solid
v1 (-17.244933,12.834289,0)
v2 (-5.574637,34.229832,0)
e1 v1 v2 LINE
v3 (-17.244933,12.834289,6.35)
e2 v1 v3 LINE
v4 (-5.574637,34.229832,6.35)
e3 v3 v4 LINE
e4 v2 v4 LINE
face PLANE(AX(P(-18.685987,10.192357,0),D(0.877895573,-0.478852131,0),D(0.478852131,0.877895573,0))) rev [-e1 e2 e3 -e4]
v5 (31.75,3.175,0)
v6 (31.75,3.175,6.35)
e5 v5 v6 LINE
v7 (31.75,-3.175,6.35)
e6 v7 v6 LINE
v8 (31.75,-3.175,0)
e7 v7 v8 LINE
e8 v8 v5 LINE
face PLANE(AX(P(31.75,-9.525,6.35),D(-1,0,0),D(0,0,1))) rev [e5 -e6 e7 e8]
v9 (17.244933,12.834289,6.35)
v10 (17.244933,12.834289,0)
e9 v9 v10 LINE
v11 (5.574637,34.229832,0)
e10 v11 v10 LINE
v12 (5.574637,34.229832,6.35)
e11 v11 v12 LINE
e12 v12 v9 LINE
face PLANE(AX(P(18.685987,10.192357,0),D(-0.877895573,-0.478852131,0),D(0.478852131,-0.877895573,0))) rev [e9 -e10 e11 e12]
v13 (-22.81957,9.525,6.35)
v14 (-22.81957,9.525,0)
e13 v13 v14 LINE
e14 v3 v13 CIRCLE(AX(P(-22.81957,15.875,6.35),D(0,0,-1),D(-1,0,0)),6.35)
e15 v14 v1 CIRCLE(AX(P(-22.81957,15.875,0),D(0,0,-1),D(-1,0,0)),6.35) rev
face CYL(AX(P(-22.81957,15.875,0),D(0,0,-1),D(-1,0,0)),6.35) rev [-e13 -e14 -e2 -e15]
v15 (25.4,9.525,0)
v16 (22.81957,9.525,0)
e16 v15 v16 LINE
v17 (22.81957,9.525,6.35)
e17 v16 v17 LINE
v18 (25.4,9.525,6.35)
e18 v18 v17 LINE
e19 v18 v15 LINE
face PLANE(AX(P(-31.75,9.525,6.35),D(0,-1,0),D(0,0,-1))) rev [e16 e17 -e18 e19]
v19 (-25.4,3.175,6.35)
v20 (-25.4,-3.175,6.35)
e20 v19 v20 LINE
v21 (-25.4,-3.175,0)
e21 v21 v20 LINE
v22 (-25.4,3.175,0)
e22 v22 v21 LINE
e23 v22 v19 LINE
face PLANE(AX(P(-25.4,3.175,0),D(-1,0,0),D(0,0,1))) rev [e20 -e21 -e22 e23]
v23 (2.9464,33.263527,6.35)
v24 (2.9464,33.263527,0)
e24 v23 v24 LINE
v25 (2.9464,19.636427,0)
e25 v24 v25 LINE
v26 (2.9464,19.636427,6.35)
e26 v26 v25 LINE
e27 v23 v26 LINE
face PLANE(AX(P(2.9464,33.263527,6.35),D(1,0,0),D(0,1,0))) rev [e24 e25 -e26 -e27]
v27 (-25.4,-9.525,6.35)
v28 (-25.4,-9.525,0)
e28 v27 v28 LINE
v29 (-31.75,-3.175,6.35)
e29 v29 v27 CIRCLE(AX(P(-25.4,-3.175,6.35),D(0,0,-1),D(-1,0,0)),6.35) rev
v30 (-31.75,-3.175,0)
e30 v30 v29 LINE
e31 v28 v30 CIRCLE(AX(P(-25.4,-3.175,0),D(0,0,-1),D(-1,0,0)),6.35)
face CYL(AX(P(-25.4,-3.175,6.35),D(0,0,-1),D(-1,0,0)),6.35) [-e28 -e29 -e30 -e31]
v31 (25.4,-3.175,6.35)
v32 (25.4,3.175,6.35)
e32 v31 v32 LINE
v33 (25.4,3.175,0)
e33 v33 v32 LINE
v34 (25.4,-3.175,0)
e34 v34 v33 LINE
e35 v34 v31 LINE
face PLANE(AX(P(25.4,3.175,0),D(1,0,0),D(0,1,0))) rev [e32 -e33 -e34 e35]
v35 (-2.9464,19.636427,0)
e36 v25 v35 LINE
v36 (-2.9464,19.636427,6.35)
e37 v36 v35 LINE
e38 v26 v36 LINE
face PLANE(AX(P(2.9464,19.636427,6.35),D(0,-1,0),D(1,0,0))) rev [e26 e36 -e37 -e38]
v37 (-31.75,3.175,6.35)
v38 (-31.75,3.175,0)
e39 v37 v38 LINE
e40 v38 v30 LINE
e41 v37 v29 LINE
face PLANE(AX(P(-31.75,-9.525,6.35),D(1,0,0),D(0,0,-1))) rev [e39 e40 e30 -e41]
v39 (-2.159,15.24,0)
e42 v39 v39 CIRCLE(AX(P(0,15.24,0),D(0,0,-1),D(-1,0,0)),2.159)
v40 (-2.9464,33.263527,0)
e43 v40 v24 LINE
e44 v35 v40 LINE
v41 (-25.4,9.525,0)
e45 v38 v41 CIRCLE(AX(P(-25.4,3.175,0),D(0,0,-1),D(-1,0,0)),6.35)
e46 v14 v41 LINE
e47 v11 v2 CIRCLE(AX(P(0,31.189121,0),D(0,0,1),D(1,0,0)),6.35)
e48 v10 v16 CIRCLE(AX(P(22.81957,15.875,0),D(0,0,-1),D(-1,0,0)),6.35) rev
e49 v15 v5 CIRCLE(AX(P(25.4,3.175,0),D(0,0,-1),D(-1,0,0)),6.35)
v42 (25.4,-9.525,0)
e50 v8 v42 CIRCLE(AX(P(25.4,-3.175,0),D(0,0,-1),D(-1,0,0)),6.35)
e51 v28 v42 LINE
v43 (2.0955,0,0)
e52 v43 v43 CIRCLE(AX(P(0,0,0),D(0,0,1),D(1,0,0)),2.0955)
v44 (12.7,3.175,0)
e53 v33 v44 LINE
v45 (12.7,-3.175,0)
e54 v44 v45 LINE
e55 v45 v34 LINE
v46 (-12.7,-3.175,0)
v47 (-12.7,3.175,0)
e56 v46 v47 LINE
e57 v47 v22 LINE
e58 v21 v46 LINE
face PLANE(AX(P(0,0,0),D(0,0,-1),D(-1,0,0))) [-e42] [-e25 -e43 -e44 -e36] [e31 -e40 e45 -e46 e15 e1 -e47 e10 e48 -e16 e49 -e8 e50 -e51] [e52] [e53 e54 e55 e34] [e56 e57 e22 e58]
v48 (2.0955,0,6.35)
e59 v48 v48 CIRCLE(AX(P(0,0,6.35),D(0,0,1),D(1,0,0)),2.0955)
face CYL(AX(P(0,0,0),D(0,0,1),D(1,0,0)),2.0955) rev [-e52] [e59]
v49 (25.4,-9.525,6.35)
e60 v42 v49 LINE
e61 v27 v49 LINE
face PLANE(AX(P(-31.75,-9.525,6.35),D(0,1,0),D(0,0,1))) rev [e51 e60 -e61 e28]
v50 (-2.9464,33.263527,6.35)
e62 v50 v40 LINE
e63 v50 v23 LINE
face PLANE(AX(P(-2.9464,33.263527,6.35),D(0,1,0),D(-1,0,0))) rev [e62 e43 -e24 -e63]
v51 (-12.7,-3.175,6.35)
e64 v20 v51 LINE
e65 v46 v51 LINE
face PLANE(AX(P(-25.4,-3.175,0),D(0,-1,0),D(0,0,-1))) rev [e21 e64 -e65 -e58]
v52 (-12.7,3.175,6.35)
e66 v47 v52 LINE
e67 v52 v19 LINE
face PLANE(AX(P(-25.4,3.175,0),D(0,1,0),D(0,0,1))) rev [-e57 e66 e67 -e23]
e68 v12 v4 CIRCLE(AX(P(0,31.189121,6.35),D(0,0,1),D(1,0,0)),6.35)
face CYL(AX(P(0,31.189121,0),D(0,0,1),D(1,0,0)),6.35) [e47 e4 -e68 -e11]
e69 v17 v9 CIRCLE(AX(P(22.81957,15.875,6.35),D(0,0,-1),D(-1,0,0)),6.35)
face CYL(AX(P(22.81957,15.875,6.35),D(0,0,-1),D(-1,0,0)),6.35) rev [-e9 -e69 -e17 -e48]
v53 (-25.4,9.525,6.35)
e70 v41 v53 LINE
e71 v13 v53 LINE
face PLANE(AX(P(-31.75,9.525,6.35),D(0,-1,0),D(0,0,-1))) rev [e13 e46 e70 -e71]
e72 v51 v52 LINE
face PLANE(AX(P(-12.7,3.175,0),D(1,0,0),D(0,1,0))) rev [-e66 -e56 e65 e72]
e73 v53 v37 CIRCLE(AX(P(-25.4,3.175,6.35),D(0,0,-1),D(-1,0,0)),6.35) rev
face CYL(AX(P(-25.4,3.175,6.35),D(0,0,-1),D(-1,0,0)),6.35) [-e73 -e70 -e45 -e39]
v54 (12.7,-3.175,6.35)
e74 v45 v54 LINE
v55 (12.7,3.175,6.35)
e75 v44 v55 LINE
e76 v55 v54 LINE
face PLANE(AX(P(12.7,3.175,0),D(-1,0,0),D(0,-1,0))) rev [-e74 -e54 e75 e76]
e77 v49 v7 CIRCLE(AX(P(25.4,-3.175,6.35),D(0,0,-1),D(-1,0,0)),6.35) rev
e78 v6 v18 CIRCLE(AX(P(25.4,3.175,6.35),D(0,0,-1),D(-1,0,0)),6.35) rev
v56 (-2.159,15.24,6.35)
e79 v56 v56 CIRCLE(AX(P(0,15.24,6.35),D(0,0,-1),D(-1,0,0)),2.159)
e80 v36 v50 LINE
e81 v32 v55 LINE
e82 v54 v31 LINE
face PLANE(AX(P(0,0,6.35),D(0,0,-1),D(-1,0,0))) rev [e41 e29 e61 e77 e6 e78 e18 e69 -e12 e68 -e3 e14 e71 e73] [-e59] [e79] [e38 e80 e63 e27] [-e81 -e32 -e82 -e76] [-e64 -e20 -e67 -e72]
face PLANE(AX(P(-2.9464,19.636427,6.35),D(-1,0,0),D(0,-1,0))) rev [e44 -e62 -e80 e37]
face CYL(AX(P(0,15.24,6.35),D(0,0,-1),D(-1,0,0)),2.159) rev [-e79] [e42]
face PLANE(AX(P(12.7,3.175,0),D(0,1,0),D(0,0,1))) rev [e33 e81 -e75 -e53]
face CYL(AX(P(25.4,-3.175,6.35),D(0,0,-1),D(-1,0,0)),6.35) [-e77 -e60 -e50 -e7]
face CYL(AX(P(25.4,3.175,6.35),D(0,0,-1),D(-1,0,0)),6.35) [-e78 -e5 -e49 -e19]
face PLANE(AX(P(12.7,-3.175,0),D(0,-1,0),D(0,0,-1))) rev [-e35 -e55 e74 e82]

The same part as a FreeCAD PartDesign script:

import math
import FreeCAD as App
import Part
import Sketcher
from FreeCAD import Vector
Q = App.Units.Quantity


def edges_at(feature, points):
    """Names of the edges that pass closest to the given points."""
    edges = feature.Shape.Edges
    near = lambda p: min(range(len(edges)), key=lambda i: edges[i].distToShape(Part.Vertex(*p))[0])
    return sorted({f"Edge{near(p) + 1}" for p in points})

doc = App.newDocument("Part")
body = doc.addObject("PartDesign::Body", "Body")

# Sketch on XY plane
sketch1 = doc.addObject("Sketcher::SketchObject", "Sketch")
body.addObject(sketch1)
sketch1.AttachmentSupport = (doc.XY_Plane, [""])
sketch1.MapMode = "FlatFace"
sketch1.addGeometry([
    Part.LineSegment(Vector(-32, 10, 0), Vector(-32, -10, 0)),
    Part.LineSegment(Vector(-32, -10, 0), Vector(32, -10, 0)),
    Part.LineSegment(Vector(32, -10, 0), Vector(32, 10, 0)),
    Part.LineSegment(Vector(32, 10, 0), Vector(-32, 10, 0)),
], False)
sketch1.addConstraint([
    Sketcher.Constraint("Coincident", 0, 2, 1, 1),
    Sketcher.Constraint("Coincident", 1, 2, 2, 1),
    Sketcher.Constraint("Coincident", 2, 2, 3, 1),
    Sketcher.Constraint("Coincident", 3, 2, 0, 1),
    Sketcher.Constraint("Vertical", 0),
    Sketcher.Constraint("Horizontal", 1),
    Sketcher.Constraint("Vertical", 2),
    Sketcher.Constraint("Horizontal", 3),
    Sketcher.Constraint("Symmetric", 0, 2, 2, 2, -1, 1),
    Sketcher.Constraint("DistanceX", 1, 1, 1, 2, Q("2.5 in")),
    Sketcher.Constraint("DistanceY", 0, 2, 0, 1, Q("0.75 in")),
])
pad1 = doc.addObject("PartDesign::Pad", "Pad")
body.addObject(pad1)
pad1.Profile = sketch1
pad1.Length = Q("0.25 in")

# Sketch on XY plane
sketch2 = doc.addObject("Sketcher::SketchObject", "Sketch001")
body.addObject(sketch2)
sketch2.AttachmentSupport = (doc.XY_Plane, [""])
sketch2.MapMode = "FlatFace"
sketch2.AttachmentOffset = App.Placement(Vector(0, 0, 0.25 * 25.4), App.Rotation())
sketch2.addGeometry([
    Part.Circle(Vector(0, 0, 0), Vector(0, 0, 1), 2.1),  # 0
    Part.LineSegment(Vector(-25.4, 3.2, 0), Vector(-25.4, -3.2, 0)),  # 1
    Part.LineSegment(Vector(-25.4, -3.2, 0), Vector(-12.7, -3.2, 0)),  # 2
    Part.LineSegment(Vector(-12.7, -3.2, 0), Vector(-12.7, 3.2, 0)),  # 3
    Part.LineSegment(Vector(-12.7, 3.2, 0), Vector(-25.4, 3.2, 0)),  # 4
    Part.LineSegment(Vector(12.7, 3.2, 0), Vector(12.7, -3.2, 0)),  # 5
    Part.LineSegment(Vector(12.7, -3.2, 0), Vector(25.4, -3.2, 0)),  # 6
    Part.LineSegment(Vector(25.4, -3.2, 0), Vector(25.4, 3.2, 0)),  # 7
    Part.LineSegment(Vector(25.4, 3.2, 0), Vector(12.7, 3.2, 0)),  # 8
], False)
sketch2.addConstraint([
    Sketcher.Constraint("Coincident", 1, 2, 2, 1),
    Sketcher.Constraint("Coincident", 2, 2, 3, 1),
    Sketcher.Constraint("Coincident", 3, 2, 4, 1),
    Sketcher.Constraint("Coincident", 4, 2, 1, 1),
    Sketcher.Constraint("Coincident", 5, 2, 6, 1),
    Sketcher.Constraint("Coincident", 6, 2, 7, 1),
    Sketcher.Constraint("Coincident", 7, 2, 8, 1),
    Sketcher.Constraint("Coincident", 8, 2, 5, 1),
    Sketcher.Constraint("Vertical", 1),
    Sketcher.Constraint("Horizontal", 2),
    Sketcher.Constraint("Vertical", 3),
    Sketcher.Constraint("Horizontal", 4),
    Sketcher.Constraint("Vertical", 5),
    Sketcher.Constraint("Horizontal", 6),
    Sketcher.Constraint("Vertical", 7),
    Sketcher.Constraint("Horizontal", 8),
    Sketcher.Constraint("Coincident", 0, 3, -1, 1),
    Sketcher.Constraint("Symmetric", 3, 2, 5, 2, -1, 1),
    Sketcher.Constraint("Symmetric", 1, 2, 7, 2, -1, 1),
    Sketcher.Constraint("Horizontal", 2, 2, 5, 2),
    Sketcher.Constraint("Diameter", 0, Q("0.165 in")),
    Sketcher.Constraint("DistanceX", 2, 1, 2, 2, Q("0.5 in")),
    Sketcher.Constraint("DistanceX", 1, 2, -1, 1, Q("1 in")),
    Sketcher.Constraint("DistanceY", 1, 2, 1, 1, Q("0.25 in")),
])
pocket1 = doc.addObject("PartDesign::Pocket", "Pocket")
body.addObject(pocket1)
pocket1.Profile = sketch2
pocket1.Length = Q("0.25 in")

# Sketch on XY plane
sketch3 = doc.addObject("Sketcher::SketchObject", "Sketch002")
body.addObject(sketch3)
sketch3.AttachmentSupport = (doc.XY_Plane, [""])
sketch3.MapMode = "FlatFace"
sketch3.AttachmentOffset = App.Placement(Vector(0, 0, 0.25 * 25.4), App.Rotation())
sketch3.addGeometry([
    Part.ArcOfCircle(Part.Circle(Vector(0, 31, 0), Vector(0, 0, 1), 6), math.radians(90), math.radians(151)),  # 0
    Part.LineSegment(Vector(-6, 34, 0), Vector(-19, 10, 0)),  # 1
    Part.LineSegment(Vector(-19, 10, 0), Vector(19, 10, 0)),  # 2
    Part.LineSegment(Vector(19, 10, 0), Vector(6, 34, 0)),  # 3
    Part.ArcOfCircle(Part.Circle(Vector(0, 31, 0), Vector(0, 0, 1), 6), math.radians(29), math.radians(90)),  # 4
], False)
sketch3.addConstraint([
    Sketcher.Constraint("Tangent", 0, 2, 1, 1),
    Sketcher.Constraint("Coincident", 1, 2, 2, 1),
    Sketcher.Constraint("Coincident", 2, 2, 3, 1),
    Sketcher.Constraint("Tangent", 3, 2, 4, 1),
    Sketcher.Constraint("Tangent", 4, 2, 0, 1),
    Sketcher.Constraint("Horizontal", 2),
    Sketcher.Constraint("Equal", 0, 4),
    Sketcher.Constraint("Symmetric", 0, 2, 3, 2, -2),
    Sketcher.Constraint("PointOnObject", 4, 2, -2),
    Sketcher.Constraint("Radius", 0, Q("0.25 in")),
    Sketcher.Constraint("DistanceX", 2, 1, 2, 2, Q("1.5 in")),
    Sketcher.Constraint("DistanceY", -1, 1, 1, 2, Q("0.375 in")),
    Sketcher.Constraint("Distance", 1, Q("28.140969 mm")),
])
pad2 = doc.addObject("PartDesign::Pad", "Pad001")
body.addObject(pad2)
pad2.Profile = sketch3
pad2.Length = Q("0.25 in")
pad2.Reversed = True

# Sketch on XY plane
sketch4 = doc.addObject("Sketcher::SketchObject", "Sketch003")
body.addObject(sketch4)
sketch4.AttachmentSupport = (doc.XY_Plane, [""])
sketch4.MapMode = "FlatFace"
sketch4.addGeometry([
    Part.Circle(Vector(0, 15.2, 0), Vector(0, 0, 1), 2.2),  # 0
    Part.LineSegment(Vector(2.9, 33.3, 0), Vector(2.9, 19.6, 0)),  # 1
    Part.LineSegment(Vector(2.9, 19.6, 0), Vector(-2.9, 19.6, 0)),  # 2
    Part.LineSegment(Vector(-2.9, 19.6, 0), Vector(-2.9, 33.3, 0)),  # 3
    Part.LineSegment(Vector(-2.9, 33.3, 0), Vector(2.9, 33.3, 0)),  # 4
], False)
sketch4.addConstraint([
    Sketcher.Constraint("Coincident", 1, 2, 2, 1),
    Sketcher.Constraint("Coincident", 2, 2, 3, 1),
    Sketcher.Constraint("Coincident", 3, 2, 4, 1),
    Sketcher.Constraint("Coincident", 4, 2, 1, 1),
    Sketcher.Constraint("Vertical", 1),
    Sketcher.Constraint("Horizontal", 2),
    Sketcher.Constraint("Vertical", 3),
    Sketcher.Constraint("Horizontal", 4),
    Sketcher.Constraint("PointOnObject", 0, 3, -2),
    Sketcher.Constraint("Diameter", 0, Q("0.17 in")),
    Sketcher.Constraint("DistanceY", -1, 1, 0, 3, Q("0.6 in")),
    Sketcher.Constraint("DistanceX", 2, 2, 2, 1, Q("0.232 in")),
    Sketcher.Constraint("DistanceY", 1, 2, 1, 1, Q("0.5365 in")),
    Sketcher.Constraint("DistanceX", -1, 1, 1, 2, Q("0.116 in")),
    Sketcher.Constraint("DistanceY", -1, 1, 1, 2, Q("19.636427 mm")),
])
pocket2 = doc.addObject("PartDesign::Pocket", "Pocket001")
body.addObject(pocket2)
pocket2.Profile = sketch4
pocket2.Length = Q("0.25 in")
pocket2.Reversed = True
doc.recompute()

fillet = doc.addObject("PartDesign::Fillet", "Fillet")
body.addObject(fillet)
fillet.Base = (pocket2, edges_at(pocket2, [
    (31.75, -9.525, 3.175),
    (31.75, 9.525, 3.175),
    (19.05, 9.525, 3.175),
    (-31.75, -9.525, 3.175),
    (-31.75, 9.525, 3.175),
    (-19.05, 9.525, 3.175),
]))
fillet.Radius = Q("0.25 in")

doc.recompute()
